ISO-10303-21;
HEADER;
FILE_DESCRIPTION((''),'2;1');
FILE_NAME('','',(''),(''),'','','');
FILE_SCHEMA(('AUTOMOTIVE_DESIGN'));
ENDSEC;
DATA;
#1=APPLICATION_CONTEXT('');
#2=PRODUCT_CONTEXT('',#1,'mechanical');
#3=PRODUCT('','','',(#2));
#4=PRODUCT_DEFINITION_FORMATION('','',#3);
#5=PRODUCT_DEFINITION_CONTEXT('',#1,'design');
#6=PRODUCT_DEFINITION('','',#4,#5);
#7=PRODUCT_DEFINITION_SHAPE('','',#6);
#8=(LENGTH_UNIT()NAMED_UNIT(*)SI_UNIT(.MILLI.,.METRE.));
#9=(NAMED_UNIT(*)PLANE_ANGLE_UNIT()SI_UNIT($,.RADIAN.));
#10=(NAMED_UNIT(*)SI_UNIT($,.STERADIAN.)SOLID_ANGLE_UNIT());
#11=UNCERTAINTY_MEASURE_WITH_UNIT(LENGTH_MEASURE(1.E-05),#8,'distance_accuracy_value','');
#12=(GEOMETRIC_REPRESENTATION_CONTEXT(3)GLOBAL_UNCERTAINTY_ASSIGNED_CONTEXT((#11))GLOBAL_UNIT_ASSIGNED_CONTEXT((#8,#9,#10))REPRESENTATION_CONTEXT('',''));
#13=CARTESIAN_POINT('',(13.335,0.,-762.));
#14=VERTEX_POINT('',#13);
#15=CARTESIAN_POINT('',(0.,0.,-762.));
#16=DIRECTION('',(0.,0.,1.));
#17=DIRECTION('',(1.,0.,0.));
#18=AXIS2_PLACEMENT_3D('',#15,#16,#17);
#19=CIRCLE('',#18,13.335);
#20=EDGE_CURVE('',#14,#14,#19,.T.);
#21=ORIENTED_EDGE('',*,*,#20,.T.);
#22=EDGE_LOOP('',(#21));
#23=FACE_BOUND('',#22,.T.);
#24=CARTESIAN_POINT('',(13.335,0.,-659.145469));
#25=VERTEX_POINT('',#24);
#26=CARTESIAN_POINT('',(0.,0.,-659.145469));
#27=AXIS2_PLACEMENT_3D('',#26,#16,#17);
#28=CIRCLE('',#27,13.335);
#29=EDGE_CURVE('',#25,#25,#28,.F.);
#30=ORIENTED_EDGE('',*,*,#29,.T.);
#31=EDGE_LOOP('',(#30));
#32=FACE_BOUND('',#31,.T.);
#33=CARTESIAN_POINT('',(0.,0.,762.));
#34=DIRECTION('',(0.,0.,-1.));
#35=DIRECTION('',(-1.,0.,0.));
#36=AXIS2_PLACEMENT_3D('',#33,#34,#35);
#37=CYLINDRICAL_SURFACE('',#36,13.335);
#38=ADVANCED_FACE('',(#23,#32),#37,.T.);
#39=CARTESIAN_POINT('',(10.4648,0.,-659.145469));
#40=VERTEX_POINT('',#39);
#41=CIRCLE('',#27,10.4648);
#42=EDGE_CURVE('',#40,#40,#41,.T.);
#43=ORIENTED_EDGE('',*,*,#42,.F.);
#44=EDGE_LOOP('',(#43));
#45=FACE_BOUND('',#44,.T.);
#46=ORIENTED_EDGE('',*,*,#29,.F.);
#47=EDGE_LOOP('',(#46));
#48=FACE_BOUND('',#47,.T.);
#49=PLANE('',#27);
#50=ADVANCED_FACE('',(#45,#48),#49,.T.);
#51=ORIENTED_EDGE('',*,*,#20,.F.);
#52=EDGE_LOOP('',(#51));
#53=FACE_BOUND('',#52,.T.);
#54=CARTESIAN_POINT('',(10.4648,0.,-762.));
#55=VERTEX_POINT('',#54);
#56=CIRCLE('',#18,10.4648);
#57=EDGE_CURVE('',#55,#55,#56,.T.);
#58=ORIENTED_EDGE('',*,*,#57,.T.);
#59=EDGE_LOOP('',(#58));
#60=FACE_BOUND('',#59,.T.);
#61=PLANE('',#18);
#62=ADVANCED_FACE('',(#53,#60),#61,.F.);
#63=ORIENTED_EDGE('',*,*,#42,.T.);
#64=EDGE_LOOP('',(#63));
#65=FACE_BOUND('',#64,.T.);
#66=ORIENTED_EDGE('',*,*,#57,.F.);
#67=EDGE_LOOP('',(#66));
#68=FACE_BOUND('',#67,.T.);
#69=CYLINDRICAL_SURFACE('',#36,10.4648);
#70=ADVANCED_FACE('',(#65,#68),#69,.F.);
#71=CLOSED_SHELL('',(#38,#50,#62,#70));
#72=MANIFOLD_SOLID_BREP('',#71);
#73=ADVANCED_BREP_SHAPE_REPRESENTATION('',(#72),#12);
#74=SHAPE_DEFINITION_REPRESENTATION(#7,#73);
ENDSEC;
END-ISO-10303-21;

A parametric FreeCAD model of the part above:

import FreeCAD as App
import Part
import Sketcher
from FreeCAD import Vector
Q = App.Units.Quantity

doc = App.newDocument("Part")
params = doc.addObject("Spreadsheet::Sheet", "Params")
for row, (alias, value) in enumerate([
    ("sketch1_diameter", "1.05 in"),
    ("sketch1_diameter2", "0.824 in"),
    ("pad1_length", "30 in"),
    ("pad1_length2", "30 in"),
    ("sketch2_diameter", "1.05 in"),
    ("pocket1_length", "1421.145469 mm"),
], start=1):
    params.set(f"A{row}", alias)
    params.set(f"B{row}", "=" + value)
    params.setAlias(f"B{row}", alias)

body = doc.addObject("PartDesign::Body", "Body")

# Sketch on XY plane
sketch1 = doc.addObject("Sketcher::SketchObject", "Sketch")
body.addObject(sketch1)
sketch1.AttachmentSupport = (doc.XY_Plane, [""])
sketch1.MapMode = "FlatFace"
sketch1.addGeometry([
    Part.Circle(Vector(0, 0, 0), Vector(0, 0, 1), 13.335),
    Part.Circle(Vector(0, 0, 0), Vector(0, 0, 1), 10.4648),
], False)
sketch1.addConstraint([
    Sketcher.Constraint("Coincident", 0, 3, -1, 1),
    Sketcher.Constraint("Coincident", 1, 3, -1, 1),
    Sketcher.Constraint("Diameter", 0, Q("1.05 in")),
    Sketcher.Constraint("Diameter", 1, Q("0.824 in")),
])
sketch1.setExpression("Constraints[2]", "Params.sketch1_diameter")
sketch1.setExpression("Constraints[3]", "Params.sketch1_diameter2")
pad1 = doc.addObject("PartDesign::Pad", "Pad")
body.addObject(pad1)
pad1.Profile = sketch1
pad1.Type = "TwoLengths"
pad1.setExpression("Length", "Params.pad1_length")
pad1.setExpression("Length2", "Params.pad1_length2")

# Sketch on XY plane
sketch2 = doc.addObject("Sketcher::SketchObject", "Sketch001")
body.addObject(sketch2)
sketch2.AttachmentSupport = (doc.XY_Plane, [""])
sketch2.MapMode = "FlatFace"
sketch2.AttachmentOffset = App.Placement(Vector(0, 0, 30 * 25.4), App.Rotation())
sketch2.addGeometry(Part.Circle(Vector(0, 0, 0), Vector(0, 0, 1), 13.335), False)
sketch2.addConstraint([
    Sketcher.Constraint("Coincident", 0, 3, -1, 1),
    Sketcher.Constraint("Diameter", 0, Q("1.05 in")),
])
sketch2.setExpression("Constraints[1]", "Params.sketch2_diameter")
pocket1 = doc.addObject("PartDesign::Pocket", "Pocket")
body.addObject(pocket1)
pocket1.Profile = sketch2
pocket1.setExpression("Length", "Params.pocket1_length")

doc.recompute()
